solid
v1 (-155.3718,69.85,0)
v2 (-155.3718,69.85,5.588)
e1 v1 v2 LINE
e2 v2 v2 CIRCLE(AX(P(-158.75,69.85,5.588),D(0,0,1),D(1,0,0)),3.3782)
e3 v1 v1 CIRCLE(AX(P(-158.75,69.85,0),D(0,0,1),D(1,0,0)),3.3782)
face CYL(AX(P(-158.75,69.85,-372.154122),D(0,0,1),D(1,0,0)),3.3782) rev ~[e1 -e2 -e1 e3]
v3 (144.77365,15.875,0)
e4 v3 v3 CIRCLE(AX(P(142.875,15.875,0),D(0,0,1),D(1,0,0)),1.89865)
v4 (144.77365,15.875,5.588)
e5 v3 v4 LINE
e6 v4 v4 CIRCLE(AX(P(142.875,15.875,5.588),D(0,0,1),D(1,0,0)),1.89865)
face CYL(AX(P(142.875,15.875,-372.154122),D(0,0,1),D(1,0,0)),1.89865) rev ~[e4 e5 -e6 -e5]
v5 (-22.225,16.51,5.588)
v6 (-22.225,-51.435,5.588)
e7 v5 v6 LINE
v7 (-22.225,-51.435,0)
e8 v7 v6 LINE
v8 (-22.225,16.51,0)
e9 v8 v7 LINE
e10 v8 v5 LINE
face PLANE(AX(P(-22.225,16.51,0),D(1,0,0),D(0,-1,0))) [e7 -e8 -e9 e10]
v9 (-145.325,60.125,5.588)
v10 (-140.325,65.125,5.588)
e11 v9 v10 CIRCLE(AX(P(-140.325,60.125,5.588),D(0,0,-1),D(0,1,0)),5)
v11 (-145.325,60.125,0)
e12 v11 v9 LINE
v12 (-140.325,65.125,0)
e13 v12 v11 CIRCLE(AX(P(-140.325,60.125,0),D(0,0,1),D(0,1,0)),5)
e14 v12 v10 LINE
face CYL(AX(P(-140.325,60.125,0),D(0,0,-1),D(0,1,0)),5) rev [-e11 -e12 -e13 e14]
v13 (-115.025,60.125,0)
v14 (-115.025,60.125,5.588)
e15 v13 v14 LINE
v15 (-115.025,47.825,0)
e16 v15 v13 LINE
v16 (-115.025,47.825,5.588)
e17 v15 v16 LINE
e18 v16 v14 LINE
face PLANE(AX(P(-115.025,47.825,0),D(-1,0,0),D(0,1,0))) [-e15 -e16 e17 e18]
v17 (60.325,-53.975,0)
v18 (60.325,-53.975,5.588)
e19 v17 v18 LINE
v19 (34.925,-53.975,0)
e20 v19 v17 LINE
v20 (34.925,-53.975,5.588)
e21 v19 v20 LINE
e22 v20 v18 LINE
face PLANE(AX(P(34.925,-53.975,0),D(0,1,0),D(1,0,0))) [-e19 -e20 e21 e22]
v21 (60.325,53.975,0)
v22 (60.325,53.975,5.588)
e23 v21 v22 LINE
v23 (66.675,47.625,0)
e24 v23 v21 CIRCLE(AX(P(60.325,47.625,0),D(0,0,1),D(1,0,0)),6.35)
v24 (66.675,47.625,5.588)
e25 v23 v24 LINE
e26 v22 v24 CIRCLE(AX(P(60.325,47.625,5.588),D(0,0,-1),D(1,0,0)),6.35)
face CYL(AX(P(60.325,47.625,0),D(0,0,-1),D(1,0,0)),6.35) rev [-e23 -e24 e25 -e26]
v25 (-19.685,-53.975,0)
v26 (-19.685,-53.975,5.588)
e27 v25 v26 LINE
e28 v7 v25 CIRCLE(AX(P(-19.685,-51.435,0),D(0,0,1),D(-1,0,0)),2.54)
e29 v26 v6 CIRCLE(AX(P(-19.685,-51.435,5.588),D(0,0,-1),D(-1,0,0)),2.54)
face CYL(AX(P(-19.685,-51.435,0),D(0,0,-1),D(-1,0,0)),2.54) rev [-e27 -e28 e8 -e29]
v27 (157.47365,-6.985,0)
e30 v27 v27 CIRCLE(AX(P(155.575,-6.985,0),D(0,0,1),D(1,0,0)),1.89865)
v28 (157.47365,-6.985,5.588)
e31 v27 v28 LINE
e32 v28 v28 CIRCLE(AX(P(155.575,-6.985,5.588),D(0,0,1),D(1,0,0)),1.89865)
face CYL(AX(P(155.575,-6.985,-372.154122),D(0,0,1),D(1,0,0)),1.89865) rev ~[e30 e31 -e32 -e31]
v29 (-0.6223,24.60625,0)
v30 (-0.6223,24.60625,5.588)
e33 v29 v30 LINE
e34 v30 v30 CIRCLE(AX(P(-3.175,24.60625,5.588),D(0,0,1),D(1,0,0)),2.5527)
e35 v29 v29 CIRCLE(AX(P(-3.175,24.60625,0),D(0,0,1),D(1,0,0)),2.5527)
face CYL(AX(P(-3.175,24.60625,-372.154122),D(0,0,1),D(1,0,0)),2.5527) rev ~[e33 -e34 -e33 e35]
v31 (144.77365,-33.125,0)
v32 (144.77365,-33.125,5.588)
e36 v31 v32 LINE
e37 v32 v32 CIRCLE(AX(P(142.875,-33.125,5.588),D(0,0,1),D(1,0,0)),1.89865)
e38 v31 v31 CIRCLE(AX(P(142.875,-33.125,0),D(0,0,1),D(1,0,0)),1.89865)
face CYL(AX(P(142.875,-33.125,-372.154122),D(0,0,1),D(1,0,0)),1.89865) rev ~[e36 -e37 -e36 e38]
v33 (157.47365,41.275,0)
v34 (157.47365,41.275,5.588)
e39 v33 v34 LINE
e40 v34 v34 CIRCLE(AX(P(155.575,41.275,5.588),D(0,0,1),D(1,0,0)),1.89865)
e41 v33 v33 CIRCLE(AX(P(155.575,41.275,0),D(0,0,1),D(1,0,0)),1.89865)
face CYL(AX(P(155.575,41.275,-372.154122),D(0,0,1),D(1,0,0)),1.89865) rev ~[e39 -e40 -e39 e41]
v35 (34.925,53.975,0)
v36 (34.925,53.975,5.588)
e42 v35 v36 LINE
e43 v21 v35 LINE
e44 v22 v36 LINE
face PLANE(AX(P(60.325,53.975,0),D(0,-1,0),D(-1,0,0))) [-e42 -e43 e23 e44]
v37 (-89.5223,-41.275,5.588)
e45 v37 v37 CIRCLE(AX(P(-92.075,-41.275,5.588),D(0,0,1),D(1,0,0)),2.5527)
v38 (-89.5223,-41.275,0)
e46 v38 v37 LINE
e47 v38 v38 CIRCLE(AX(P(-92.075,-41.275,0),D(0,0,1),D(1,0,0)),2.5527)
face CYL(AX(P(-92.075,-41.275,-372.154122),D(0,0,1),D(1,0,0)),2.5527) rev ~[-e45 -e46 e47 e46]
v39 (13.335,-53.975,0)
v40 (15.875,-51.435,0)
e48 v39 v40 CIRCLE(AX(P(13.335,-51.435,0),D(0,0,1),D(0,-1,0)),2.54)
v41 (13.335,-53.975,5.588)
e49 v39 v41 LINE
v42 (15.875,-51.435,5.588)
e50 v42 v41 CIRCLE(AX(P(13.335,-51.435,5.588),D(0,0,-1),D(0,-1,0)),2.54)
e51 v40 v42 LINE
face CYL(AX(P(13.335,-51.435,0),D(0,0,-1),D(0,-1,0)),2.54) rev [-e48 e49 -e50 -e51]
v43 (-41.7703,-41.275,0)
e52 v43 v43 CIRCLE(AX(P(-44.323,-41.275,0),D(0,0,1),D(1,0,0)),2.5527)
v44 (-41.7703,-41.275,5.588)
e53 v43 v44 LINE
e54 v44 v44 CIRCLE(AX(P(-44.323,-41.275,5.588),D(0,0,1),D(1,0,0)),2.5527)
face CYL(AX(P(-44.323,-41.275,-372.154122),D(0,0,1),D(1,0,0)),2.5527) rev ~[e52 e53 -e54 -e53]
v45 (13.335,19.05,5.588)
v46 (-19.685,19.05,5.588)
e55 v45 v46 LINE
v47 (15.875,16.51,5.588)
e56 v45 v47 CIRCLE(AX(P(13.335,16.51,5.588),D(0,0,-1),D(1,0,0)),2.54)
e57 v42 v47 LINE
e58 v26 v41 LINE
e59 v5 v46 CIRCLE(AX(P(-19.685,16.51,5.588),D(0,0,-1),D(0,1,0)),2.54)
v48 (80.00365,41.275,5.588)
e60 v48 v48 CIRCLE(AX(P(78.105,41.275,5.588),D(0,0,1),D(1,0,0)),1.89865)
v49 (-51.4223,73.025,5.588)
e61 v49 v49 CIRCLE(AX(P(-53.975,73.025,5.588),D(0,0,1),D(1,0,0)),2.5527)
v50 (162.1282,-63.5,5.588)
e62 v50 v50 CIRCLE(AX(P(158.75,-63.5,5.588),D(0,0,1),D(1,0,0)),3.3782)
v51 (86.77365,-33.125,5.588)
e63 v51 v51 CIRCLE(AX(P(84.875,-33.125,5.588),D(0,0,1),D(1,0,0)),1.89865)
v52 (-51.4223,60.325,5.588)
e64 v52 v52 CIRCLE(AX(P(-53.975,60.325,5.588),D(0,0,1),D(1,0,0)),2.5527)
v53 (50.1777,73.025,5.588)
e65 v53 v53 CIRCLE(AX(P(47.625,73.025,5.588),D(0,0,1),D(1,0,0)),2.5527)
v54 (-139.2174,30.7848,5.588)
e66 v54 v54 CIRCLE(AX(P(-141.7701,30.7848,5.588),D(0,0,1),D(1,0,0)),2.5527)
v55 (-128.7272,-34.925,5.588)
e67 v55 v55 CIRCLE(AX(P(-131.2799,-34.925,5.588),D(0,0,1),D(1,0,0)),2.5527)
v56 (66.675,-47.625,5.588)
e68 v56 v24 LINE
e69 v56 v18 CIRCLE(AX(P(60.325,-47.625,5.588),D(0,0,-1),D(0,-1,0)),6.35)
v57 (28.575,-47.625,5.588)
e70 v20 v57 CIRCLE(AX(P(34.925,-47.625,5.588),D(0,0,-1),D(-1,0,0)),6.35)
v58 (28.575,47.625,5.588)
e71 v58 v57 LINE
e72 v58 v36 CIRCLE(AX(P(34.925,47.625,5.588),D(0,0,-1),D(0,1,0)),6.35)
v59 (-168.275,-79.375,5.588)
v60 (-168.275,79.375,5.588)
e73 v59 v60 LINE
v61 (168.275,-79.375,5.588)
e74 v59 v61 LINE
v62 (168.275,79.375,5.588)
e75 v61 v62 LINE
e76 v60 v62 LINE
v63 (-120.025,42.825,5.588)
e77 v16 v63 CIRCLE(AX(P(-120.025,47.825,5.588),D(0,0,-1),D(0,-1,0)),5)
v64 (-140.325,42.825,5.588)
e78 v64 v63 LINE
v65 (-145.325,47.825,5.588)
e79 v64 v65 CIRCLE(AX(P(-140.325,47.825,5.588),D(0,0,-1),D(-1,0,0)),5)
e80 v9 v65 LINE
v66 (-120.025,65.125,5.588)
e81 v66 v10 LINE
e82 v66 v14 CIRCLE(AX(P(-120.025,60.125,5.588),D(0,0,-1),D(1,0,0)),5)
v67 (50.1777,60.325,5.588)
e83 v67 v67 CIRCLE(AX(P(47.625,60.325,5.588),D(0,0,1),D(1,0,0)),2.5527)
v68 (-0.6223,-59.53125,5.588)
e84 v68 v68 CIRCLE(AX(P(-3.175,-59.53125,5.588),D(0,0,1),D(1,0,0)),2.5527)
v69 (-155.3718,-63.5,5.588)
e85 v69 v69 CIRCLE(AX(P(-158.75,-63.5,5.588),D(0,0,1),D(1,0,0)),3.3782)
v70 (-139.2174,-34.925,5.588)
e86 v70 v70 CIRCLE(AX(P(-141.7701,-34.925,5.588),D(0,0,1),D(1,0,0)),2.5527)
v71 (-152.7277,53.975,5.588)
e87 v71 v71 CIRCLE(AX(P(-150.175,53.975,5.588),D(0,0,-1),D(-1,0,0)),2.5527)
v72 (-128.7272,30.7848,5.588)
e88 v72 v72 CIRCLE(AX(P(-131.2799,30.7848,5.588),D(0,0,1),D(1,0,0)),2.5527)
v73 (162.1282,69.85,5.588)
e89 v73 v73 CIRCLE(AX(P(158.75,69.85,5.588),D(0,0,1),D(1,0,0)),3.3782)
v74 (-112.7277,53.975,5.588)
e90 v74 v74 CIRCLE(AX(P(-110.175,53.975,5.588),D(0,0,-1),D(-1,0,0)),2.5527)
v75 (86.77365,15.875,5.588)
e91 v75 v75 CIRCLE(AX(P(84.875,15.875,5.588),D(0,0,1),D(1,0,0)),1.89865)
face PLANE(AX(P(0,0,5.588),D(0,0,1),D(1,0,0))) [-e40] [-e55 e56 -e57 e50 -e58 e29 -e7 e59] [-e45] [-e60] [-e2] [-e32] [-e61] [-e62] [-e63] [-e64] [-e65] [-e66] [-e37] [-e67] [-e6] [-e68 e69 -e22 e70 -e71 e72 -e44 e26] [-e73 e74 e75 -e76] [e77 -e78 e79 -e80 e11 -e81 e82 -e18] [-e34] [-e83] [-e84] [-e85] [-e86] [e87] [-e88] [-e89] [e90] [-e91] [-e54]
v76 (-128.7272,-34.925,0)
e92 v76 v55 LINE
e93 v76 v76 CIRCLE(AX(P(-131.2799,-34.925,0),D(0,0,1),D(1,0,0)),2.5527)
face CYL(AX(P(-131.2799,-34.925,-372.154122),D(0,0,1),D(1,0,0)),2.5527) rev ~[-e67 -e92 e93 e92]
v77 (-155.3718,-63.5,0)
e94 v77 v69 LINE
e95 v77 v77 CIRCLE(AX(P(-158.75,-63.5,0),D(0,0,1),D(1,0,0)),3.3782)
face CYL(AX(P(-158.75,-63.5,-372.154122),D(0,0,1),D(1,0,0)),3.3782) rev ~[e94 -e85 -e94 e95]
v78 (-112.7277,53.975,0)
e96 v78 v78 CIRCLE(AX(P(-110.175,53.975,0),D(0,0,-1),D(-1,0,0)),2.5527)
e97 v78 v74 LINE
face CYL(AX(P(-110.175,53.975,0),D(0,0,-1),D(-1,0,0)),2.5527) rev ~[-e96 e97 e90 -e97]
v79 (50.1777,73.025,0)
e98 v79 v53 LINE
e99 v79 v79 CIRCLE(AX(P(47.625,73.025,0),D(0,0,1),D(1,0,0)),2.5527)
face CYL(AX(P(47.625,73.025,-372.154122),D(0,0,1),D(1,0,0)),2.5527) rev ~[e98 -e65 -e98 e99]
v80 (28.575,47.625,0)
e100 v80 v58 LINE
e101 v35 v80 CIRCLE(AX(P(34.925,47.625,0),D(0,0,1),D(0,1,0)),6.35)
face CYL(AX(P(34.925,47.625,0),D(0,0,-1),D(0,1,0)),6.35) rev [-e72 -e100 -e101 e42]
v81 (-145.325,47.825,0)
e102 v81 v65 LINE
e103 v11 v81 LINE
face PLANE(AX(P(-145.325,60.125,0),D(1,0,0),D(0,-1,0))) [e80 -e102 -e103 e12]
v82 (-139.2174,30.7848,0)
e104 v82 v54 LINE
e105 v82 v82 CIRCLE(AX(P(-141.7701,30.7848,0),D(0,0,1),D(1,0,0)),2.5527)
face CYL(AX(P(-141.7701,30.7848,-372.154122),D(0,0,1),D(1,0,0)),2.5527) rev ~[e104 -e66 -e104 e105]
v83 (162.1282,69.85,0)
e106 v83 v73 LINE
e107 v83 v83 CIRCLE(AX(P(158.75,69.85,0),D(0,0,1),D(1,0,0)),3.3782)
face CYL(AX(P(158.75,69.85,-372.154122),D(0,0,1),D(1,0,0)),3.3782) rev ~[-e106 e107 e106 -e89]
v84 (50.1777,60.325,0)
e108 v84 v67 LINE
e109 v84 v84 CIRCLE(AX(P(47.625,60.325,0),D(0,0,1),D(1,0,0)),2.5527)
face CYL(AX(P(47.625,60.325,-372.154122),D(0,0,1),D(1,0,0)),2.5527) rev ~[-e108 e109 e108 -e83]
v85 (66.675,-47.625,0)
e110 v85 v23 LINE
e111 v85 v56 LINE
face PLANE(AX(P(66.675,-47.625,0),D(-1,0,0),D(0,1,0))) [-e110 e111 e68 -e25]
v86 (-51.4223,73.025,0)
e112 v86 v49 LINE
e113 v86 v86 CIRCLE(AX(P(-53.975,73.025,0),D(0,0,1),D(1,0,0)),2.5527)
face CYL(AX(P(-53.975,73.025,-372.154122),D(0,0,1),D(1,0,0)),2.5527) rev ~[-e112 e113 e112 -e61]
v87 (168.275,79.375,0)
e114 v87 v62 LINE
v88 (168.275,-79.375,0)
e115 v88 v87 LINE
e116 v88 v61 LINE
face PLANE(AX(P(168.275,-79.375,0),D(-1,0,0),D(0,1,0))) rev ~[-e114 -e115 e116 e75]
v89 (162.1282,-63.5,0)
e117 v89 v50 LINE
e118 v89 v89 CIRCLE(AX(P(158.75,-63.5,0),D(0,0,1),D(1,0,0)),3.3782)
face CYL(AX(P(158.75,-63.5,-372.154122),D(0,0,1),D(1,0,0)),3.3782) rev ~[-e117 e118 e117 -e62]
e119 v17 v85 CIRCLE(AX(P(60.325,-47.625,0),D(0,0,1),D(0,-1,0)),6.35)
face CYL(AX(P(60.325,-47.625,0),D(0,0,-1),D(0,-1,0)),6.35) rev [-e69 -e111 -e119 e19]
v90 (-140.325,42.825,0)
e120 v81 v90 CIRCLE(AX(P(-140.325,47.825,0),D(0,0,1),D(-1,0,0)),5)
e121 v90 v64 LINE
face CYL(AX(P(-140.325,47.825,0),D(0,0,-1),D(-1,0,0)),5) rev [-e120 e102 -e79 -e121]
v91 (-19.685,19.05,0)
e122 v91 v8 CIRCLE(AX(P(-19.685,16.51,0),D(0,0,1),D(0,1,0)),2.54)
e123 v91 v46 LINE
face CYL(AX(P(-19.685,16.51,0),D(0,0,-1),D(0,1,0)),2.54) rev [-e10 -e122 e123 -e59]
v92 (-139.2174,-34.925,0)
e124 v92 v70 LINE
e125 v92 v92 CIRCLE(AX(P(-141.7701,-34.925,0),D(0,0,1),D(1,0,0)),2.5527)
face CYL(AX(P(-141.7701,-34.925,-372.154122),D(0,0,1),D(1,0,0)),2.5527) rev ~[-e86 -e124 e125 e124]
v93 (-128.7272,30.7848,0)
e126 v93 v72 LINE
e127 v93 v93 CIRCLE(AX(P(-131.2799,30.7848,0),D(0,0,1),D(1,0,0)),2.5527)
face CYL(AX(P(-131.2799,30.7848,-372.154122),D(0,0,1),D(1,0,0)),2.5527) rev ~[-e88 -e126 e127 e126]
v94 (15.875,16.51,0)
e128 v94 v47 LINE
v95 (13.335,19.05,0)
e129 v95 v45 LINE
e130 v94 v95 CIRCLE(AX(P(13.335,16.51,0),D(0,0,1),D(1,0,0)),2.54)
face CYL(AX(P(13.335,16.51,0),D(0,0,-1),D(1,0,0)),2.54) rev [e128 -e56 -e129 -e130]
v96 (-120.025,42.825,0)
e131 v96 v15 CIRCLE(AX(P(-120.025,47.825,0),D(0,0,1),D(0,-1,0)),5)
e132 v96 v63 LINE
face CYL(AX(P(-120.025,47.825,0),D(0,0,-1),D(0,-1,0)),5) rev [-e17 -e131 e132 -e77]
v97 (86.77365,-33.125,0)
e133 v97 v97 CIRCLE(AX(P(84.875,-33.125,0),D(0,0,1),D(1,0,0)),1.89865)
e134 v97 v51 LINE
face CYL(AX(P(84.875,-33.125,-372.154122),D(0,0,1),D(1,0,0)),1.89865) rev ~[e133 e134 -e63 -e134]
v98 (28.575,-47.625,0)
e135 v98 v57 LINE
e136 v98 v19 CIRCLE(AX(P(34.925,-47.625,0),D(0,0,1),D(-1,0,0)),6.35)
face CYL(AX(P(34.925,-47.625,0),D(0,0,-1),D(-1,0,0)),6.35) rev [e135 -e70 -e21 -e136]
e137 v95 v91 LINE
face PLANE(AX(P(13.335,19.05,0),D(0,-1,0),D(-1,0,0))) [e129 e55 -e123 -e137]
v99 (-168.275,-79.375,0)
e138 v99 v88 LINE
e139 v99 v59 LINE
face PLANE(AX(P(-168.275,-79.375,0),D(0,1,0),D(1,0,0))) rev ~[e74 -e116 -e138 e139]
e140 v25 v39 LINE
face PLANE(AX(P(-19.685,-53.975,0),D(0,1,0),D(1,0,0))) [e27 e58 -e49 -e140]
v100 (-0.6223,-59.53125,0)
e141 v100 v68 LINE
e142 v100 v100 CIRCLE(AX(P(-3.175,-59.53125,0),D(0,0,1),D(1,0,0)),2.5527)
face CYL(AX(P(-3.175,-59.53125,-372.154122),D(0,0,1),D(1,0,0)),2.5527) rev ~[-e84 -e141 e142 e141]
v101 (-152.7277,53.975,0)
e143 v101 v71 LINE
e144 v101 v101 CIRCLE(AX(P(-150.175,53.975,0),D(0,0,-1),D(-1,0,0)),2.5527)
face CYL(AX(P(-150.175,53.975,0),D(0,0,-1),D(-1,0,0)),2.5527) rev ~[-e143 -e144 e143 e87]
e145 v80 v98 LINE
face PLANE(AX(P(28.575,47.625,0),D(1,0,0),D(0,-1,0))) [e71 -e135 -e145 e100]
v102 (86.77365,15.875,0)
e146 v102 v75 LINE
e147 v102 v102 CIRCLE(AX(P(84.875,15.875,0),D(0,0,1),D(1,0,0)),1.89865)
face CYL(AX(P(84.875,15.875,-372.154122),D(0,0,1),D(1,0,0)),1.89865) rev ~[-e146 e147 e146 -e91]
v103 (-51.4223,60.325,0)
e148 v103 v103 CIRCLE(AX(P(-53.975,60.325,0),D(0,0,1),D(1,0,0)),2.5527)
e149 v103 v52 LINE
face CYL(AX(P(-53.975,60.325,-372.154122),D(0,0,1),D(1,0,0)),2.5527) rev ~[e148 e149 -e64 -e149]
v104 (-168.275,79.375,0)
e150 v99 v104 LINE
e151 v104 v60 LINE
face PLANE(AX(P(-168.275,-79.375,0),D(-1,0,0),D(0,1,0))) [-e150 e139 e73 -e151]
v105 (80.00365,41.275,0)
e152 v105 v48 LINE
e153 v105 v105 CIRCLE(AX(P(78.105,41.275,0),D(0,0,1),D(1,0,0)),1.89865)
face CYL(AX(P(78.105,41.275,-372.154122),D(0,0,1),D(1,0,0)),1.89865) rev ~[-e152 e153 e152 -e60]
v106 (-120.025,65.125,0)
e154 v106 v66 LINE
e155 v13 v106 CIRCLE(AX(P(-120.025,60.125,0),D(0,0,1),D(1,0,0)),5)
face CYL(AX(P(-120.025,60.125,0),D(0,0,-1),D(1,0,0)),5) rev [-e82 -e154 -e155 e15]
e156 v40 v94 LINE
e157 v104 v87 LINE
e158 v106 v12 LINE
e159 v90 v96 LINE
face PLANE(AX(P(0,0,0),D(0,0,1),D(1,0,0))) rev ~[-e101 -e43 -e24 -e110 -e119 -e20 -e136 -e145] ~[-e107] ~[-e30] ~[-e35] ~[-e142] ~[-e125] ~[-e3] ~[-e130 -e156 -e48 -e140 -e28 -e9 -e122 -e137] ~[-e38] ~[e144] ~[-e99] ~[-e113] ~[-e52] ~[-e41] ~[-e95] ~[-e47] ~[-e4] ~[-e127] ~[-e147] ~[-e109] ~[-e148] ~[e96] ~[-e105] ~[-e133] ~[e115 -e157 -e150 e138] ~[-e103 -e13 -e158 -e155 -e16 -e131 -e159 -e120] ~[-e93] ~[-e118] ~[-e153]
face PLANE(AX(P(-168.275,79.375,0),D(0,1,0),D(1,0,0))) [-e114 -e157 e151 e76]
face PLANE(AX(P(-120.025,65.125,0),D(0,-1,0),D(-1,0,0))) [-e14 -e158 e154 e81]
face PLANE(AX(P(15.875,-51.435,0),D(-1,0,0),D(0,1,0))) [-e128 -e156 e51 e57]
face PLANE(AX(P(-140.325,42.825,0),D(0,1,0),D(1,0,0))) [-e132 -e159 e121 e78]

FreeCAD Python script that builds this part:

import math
import FreeCAD as App
import Part
import Sketcher
Q = App.Units.Quantity

doc = App.newDocument("Part")
body = doc.addObject("PartDesign::Body", "Body")

sketch1 = doc.addObject("Sketcher::SketchObject", "Sketch")
body.addObject(sketch1)
sketch1.AttachmentSupport = (doc.XY_Plane, [""])
sketch1.MapMode = "FlatFace"
sketch1.addGeometry(Part.LineSegment(App.Vector(-168, 79, 0), App.Vector(-168, -79, 0)), False)
sketch1.addGeometry(Part.LineSegment(App.Vector(-168, -79, 0), App.Vector(168, -79, 0)), False)
sketch1.addGeometry(Part.LineSegment(App.Vector(168, -79, 0), App.Vector(168, 79, 0)), False)
sketch1.addGeometry(Part.LineSegment(App.Vector(168, 79, 0), App.Vector(-168, 79, 0)), False)
sketch1.addConstraint(Sketcher.Constraint("Coincident", 0, 2, 1, 1))
sketch1.addConstraint(Sketcher.Constraint("Coincident", 1, 2, 2, 1))
sketch1.addConstraint(Sketcher.Constraint("Coincident", 2, 2, 3, 1))
sketch1.addConstraint(Sketcher.Constraint("Coincident", 3, 2, 0, 1))
sketch1.addConstraint(Sketcher.Constraint("Vertical", 0))
sketch1.addConstraint(Sketcher.Constraint("Horizontal", 1))
sketch1.addConstraint(Sketcher.Constraint("Vertical", 2))
sketch1.addConstraint(Sketcher.Constraint("Horizontal", 3))
sketch1.addConstraint(Sketcher.Constraint("Symmetric", 0, 2, 2, 2, -1, 1))
sketch1.addConstraint(Sketcher.Constraint("DistanceX", 1, 1, 1, 2, Q("13.25 in")))
sketch1.addConstraint(Sketcher.Constraint("DistanceY", 0, 2, 0, 1, Q("6.25 in")))
pad1 = doc.addObject("PartDesign::Pad", "Pad")
body.addObject(pad1)
pad1.Profile = sketch1
pad1.Length = Q("0.22 in")

sketch2 = doc.addObject("Sketcher::SketchObject", "Sketch001")
body.addObject(sketch2)
sketch2.AttachmentSupport = (doc.XY_Plane, [""])
sketch2.MapMode = "FlatFace"
sketch2.addGeometry(Part.Circle(App.Vector(158.8, 69.8, 0), App.Vector(0, 0, 1), 3.4), False)
sketch2.addGeometry(Part.Circle(App.Vector(-158.8, -63.5, 0), App.Vector(0, 0, 1), 3.4), False)
sketch2.addGeometry(Part.Circle(App.Vector(158.8, -63.5, 0), App.Vector(0, 0, 1), 3.4), False)
sketch2.addGeometry(Part.Circle(App.Vector(-158.8, 69.8, 0), App.Vector(0, 0, 1), 3.4), False)
sketch2.addConstraint(Sketcher.Constraint("Equal", 0, 1))
sketch2.addConstraint(Sketcher.Constraint("Equal", 1, 2))
sketch2.addConstraint(Sketcher.Constraint("Equal", 2, 3))
sketch2.addConstraint(Sketcher.Constraint("Symmetric", 1, 3, 2, 3, -2))
sketch2.addConstraint(Sketcher.Constraint("Symmetric", 0, 3, 3, 3, -2))
sketch2.addConstraint(Sketcher.Constraint("Vertical", 0, 3, 2, 3))
sketch2.addConstraint(Sketcher.Constraint("Diameter", 0, Q("0.266 in")))
sketch2.addConstraint(Sketcher.Constraint("DistanceY", 1, 3, -1, 1, Q("2.5 in")))
sketch2.addConstraint(Sketcher.Constraint("DistanceX", 1, 3, 0, 3, Q("12.5 in")))
sketch2.addConstraint(Sketcher.Constraint("DistanceY", -1, 1, 0, 3, Q("2.75 in")))
doc.recompute()
hole = doc.addObject("PartDesign::Hole", "Hole")
body.addObject(hole)
hole.Profile = sketch2
hole.ThreadType = "None"
hole.Diameter = Q("0.266 in")
hole.DepthType = "ThroughAll"
hole.Reversed = True

sketch3 = doc.addObject("Sketcher::SketchObject", "Sketch002")
body.addObject(sketch3)
sketch3.AttachmentSupport = (doc.XY_Plane, [""])
sketch3.MapMode = "FlatFace"
sketch3.addGeometry(Part.Circle(App.Vector(155.6, 41.3, 0), App.Vector(0, 0, 1), 1.9), False)
sketch3.addGeometry(Part.Circle(App.Vector(155.6, -7, 0), App.Vector(0, 0, 1), 1.9), False)
sketch3.addGeometry(Part.Circle(App.Vector(78.1, 41.3, 0), App.Vector(0, 0, 1), 1.9), False)
sketch3.addConstraint(Sketcher.Constraint("Equal", 0, 1))
sketch3.addConstraint(Sketcher.Constraint("Equal", 1, 2))
sketch3.addConstraint(Sketcher.Constraint("Horizontal", 0, 3, 2, 3))
sketch3.addConstraint(Sketcher.Constraint("Vertical", 0, 3, 1, 3))
sketch3.addConstraint(Sketcher.Constraint("Diameter", 0, Q("0.1495 in")))
sketch3.addConstraint(Sketcher.Constraint("DistanceY", 1, 3, 0, 3, Q("1.9 in")))
sketch3.addConstraint(Sketcher.Constraint("DistanceX", 2, 3, 0, 3, Q("3.05 in")))
sketch3.addConstraint(Sketcher.Constraint("DistanceX", -1, 1, 0, 3, Q("6.125 in")))
sketch3.addConstraint(Sketcher.Constraint("DistanceY", -1, 1, 0, 3, Q("1.625 in")))
doc.recompute()
hole2 = doc.addObject("PartDesign::Hole", "Hole001")
body.addObject(hole2)
hole2.Profile = sketch3
hole2.ThreadType = "None"
hole2.Diameter = Q("0.1495 in")
hole2.DepthType = "ThroughAll"
hole2.Reversed = True

sketch4 = doc.addObject("Sketcher::SketchObject", "Sketch003")
body.addObject(sketch4)
sketch4.AttachmentSupport = (doc.XY_Plane, [""])
sketch4.MapMode = "FlatFace"
sketch4.addGeometry(Part.Circle(App.Vector(142.9, 15.9, 0), App.Vector(0, 0, 1), 1.9), False)
sketch4.addGeometry(Part.Circle(App.Vector(84.9, -33.1, 0), App.Vector(0, 0, 1), 1.9), False)
sketch4.addGeometry(Part.Circle(App.Vector(142.9, -33.1, 0), App.Vector(0, 0, 1), 1.9), False)
sketch4.addGeometry(Part.Circle(App.Vector(84.9, 15.9, 0), App.Vector(0, 0, 1), 1.9), False)
sketch4.addConstraint(Sketcher.Constraint("Equal", 0, 1))
sketch4.addConstraint(Sketcher.Constraint("Equal", 1, 2))
sketch4.addConstraint(Sketcher.Constraint("Equal", 2, 3))
sketch4.addConstraint(Sketcher.Constraint("Horizontal", 1, 3, 2, 3))
sketch4.addConstraint(Sketcher.Constraint("Horizontal", 0, 3, 3, 3))
sketch4.addConstraint(Sketcher.Constraint("Vertical", 0, 3, 2, 3))
sketch4.addConstraint(Sketcher.Constraint("Vertical", 1, 3, 3, 3))
sketch4.addConstraint(Sketcher.Constraint("Diameter", 0, Q("0.1495 in")))
sketch4.addConstraint(Sketcher.Constraint("DistanceX", -1, 1, 0, 3, Q("5.625 in")))
sketch4.addConstraint(Sketcher.Constraint("DistanceY", -1, 1, 0, 3, Q("0.625 in")))
sketch4.addConstraint(Sketcher.Constraint("DistanceX", -1, 1, 1, 3, Q("84.875 mm")))
sketch4.addConstraint(Sketcher.Constraint("DistanceY", 1, 3, -1, 1, Q("33.125 mm")))
doc.recompute()
hole3 = doc.addObject("PartDesign::Hole", "Hole002")
body.addObject(hole3)
hole3.Profile = sketch4
hole3.ThreadType = "None"
hole3.Diameter = Q("0.1495 in")
hole3.DepthType = "ThroughAll"
hole3.Reversed = True

sketch5 = doc.addObject("Sketcher::SketchObject", "Sketch004")
body.addObject(sketch5)
sketch5.AttachmentSupport = (doc.XY_Plane, [""])
sketch5.MapMode = "FlatFace"
sketch5.addGeometry(Part.LineSegment(App.Vector(-19.7, 19.1, 0), App.Vector(13.3, 19.1, 0)), False)
sketch5.addGeometry(Part.ArcOfCircle(Part.Circle(App.Vector(13.3, 16.5, 0), App.Vector(0, 0, 1), 2.5), math.radians(0), math.radians(90)), False)
sketch5.addGeometry(Part.LineSegment(App.Vector(15.9, 16.5, 0), App.Vector(15.9, -51.4, 0)), False)
sketch5.addGeometry(Part.ArcOfCircle(Part.Circle(App.Vector(13.3, -51.4, 0), App.Vector(0, 0, 1), 2.5), math.radians(-90), math.radians(0)), False)
sketch5.addGeometry(Part.LineSegment(App.Vector(13.3, -54, 0), App.Vector(-19.7, -54, 0)), False)
sketch5.addGeometry(Part.ArcOfCircle(Part.Circle(App.Vector(-19.7, -51.4, 0), App.Vector(0, 0, 1), 2.5), math.radians(-180), math.radians(-90)), False)
sketch5.addGeometry(Part.LineSegment(App.Vector(-22.2, -51.4, 0), App.Vector(-22.2, 16.5, 0)), False)
sketch5.addGeometry(Part.ArcOfCircle(Part.Circle(App.Vector(-19.7, 16.5, 0), App.Vector(0, 0, 1), 2.5), math.radians(90), math.radians(180)), False)
sketch5.addConstraint(Sketcher.Constraint("Tangent", 0, 2, 1, 2))
sketch5.addConstraint(Sketcher.Constraint("Tangent", 1, 1, 2, 1))
sketch5.addConstraint(Sketcher.Constraint("Tangent", 2, 2, 3, 2))
sketch5.addConstraint(Sketcher.Constraint("Tangent", 3, 1, 4, 1))
sketch5.addConstraint(Sketcher.Constraint("Tangent", 4, 2, 5, 2))
sketch5.addConstraint(Sketcher.Constraint("Tangent", 5, 1, 6, 1))
sketch5.addConstraint(Sketcher.Constraint("Tangent", 6, 2, 7, 2))
sketch5.addConstraint(Sketcher.Constraint("Tangent", 7, 1, 0, 1))
sketch5.addConstraint(Sketcher.Constraint("Horizontal", 0))
sketch5.addConstraint(Sketcher.Constraint("Vertical", 2))
sketch5.addConstraint(Sketcher.Constraint("Horizontal", 4))
sketch5.addConstraint(Sketcher.Constraint("Vertical", 6))
sketch5.addConstraint(Sketcher.Constraint("Equal", 1, 3))
sketch5.addConstraint(Sketcher.Constraint("Equal", 3, 5))
sketch5.addConstraint(Sketcher.Constraint("Equal", 5, 7))
sketch5.addConstraint(Sketcher.Constraint("Radius", 1, Q("0.1 in")))
sketch5.addConstraint(Sketcher.Constraint("DistanceX", 0, 1, 0, 2, Q("1.3 in")))
sketch5.addConstraint(Sketcher.Constraint("DistanceY", 2, 2, 2, 1, Q("2.675 in")))
sketch5.addConstraint(Sketcher.Constraint("DistanceY", -1, 1, 1, 3, Q("0.65 in")))
sketch5.addConstraint(Sketcher.Constraint("DistanceX", -1, 1, 1, 3, Q("0.525 in")))
pocket1 = doc.addObject("PartDesign::Pocket", "Pocket")
body.addObject(pocket1)
pocket1.Profile = sketch5
pocket1.Type = "UpToFirst"
pocket1.Reversed = True

sketch6 = doc.addObject("Sketcher::SketchObject", "Sketch005")
body.addObject(sketch6)
sketch6.AttachmentSupport = (doc.XY_Plane, [""])
sketch6.MapMode = "FlatFace"
sketch6.addGeometry(Part.Circle(App.Vector(-3.2, 24.6, 0), App.Vector(0, 0, 1), 2.6), False)
sketch6.addGeometry(Part.Circle(App.Vector(-3.2, -59.5, 0), App.Vector(0, 0, 1), 2.6), False)
sketch6.addConstraint(Sketcher.Constraint("Equal", 0, 1))
sketch6.addConstraint(Sketcher.Constraint("Vertical", 0, 3, 1, 3))
sketch6.addConstraint(Sketcher.Constraint("Diameter", 0, Q("0.201 in")))
sketch6.addConstraint(Sketcher.Constraint("DistanceX", 0, 3, -1, 1, Q("0.125 in")))
sketch6.addConstraint(Sketcher.Constraint("DistanceY", -1, 1, 0, 3, Q("0.96875 in")))
sketch6.addConstraint(Sketcher.Constraint("DistanceY", 1, 3, -1, 1, Q("2.34375 in")))
doc.recompute()
hole4 = doc.addObject("PartDesign::Hole", "Hole003")
body.addObject(hole4)
hole4.Profile = sketch6
hole4.ThreadType = "None"
hole4.Diameter = Q("0.201 in")
hole4.DepthType = "ThroughAll"
hole4.Reversed = True

sketch7 = doc.addObject("Sketcher::SketchObject", "Sketch006")
body.addObject(sketch7)
sketch7.AttachmentSupport = (doc.XY_Plane, [""])
sketch7.MapMode = "FlatFace"
sketch7.addGeometry(Part.LineSegment(App.Vector(35, 54, 0), App.Vector(60, 54, 0)), False)
sketch7.addGeometry(Part.ArcOfCircle(Part.Circle(App.Vector(60, 48, 0), App.Vector(0, 0, 1), 6), math.radians(0), math.radians(90)), False)
sketch7.addGeometry(Part.LineSegment(App.Vector(67, 48, 0), App.Vector(67, -48, 0)), False)
sketch7.addGeometry(Part.ArcOfCircle(Part.Circle(App.Vector(60, -48, 0), App.Vector(0, 0, 1), 6), math.radians(-90), math.radians(0)), False)
sketch7.addGeometry(Part.LineSegment(App.Vector(60, -54, 0), App.Vector(35, -54, 0)), False)
sketch7.addGeometry(Part.ArcOfCircle(Part.Circle(App.Vector(35, -48, 0), App.Vector(0, 0, 1), 6), math.radians(180), math.radians(270)), False)
sketch7.addGeometry(Part.LineSegment(App.Vector(29, -48, 0), App.Vector(29, 48, 0)), False)
sketch7.addGeometry(Part.ArcOfCircle(Part.Circle(App.Vector(35, 48, 0), App.Vector(0, 0, 1), 6), math.radians(90), math.radians(180)), False)
sketch7.addConstraint(Sketcher.Constraint("Tangent", 0, 2, 1, 2))
sketch7.addConstraint(Sketcher.Constraint("Tangent", 1, 1, 2, 1))
sketch7.addConstraint(Sketcher.Constraint("Tangent", 2, 2, 3, 2))
sketch7.addConstraint(Sketcher.Constraint("Tangent", 3, 1, 4, 1))
sketch7.addConstraint(Sketcher.Constraint("Tangent", 4, 2, 5, 2))
sketch7.addConstraint(Sketcher.Constraint("Tangent", 5, 1, 6, 1))
sketch7.addConstraint(Sketcher.Constraint("Tangent", 6, 2, 7, 2))
sketch7.addConstraint(Sketcher.Constraint("Tangent", 7, 1, 0, 1))
sketch7.addConstraint(Sketcher.Constraint("Horizontal", 0))
sketch7.addConstraint(Sketcher.Constraint("Vertical", 2))
sketch7.addConstraint(Sketcher.Constraint("Horizontal", 4))
sketch7.addConstraint(Sketcher.Constraint("Vertical", 6))
sketch7.addConstraint(Sketcher.Constraint("Equal", 1, 3))
sketch7.addConstraint(Sketcher.Constraint("Equal", 3, 5))
sketch7.addConstraint(Sketcher.Constraint("Equal", 5, 7))
sketch7.addConstraint(Sketcher.Constraint("DistanceX", 0, 1, 0, 2, Q("1 in")))
sketch7.addConstraint(Sketcher.Constraint("Radius", 1, Q("0.25 in")))
sketch7.addConstraint(Sketcher.Constraint("DistanceY", 3, 3, 0, 2, Q("4 in")))
sketch7.addConstraint(Sketcher.Constraint("DistanceX", -1, 1, 1, 3, Q("2.375 in")))
sketch7.addConstraint(Sketcher.Constraint("DistanceY", -1, 1, 1, 3, Q("1.875 in")))
pocket2 = doc.addObject("PartDesign::Pocket", "Pocket001")
body.addObject(pocket2)
pocket2.Profile = sketch7
pocket2.Type = "UpToFirst"
pocket2.Reversed = True

sketch8 = doc.addObject("Sketcher::SketchObject", "Sketch007")
body.addObject(sketch8)
sketch8.AttachmentSupport = (doc.XY_Plane, [""])
sketch8.MapMode = "FlatFace"
sketch8.addGeometry(Part.Circle(App.Vector(-131.3, 30.8, 0), App.Vector(0, 0, 1), 2.6), False)
sketch8.addGeometry(Part.Circle(App.Vector(-131.3, -34.9, 0), App.Vector(0, 0, 1), 2.6), False)
sketch8.addGeometry(Part.Circle(App.Vector(-141.8, 30.8, 0), App.Vector(0, 0, 1), 2.6), False)
sketch8.addGeometry(Part.Circle(App.Vector(-141.8, -34.9, 0), App.Vector(0, 0, 1), 2.6), False)
sketch8.addConstraint(Sketcher.Constraint("Equal", 0, 1))
sketch8.addConstraint(Sketcher.Constraint("Equal", 1, 2))
sketch8.addConstraint(Sketcher.Constraint("Equal", 2, 3))
sketch8.addConstraint(Sketcher.Constraint("Horizontal", 0, 3, 2, 3))
sketch8.addConstraint(Sketcher.Constraint("Horizontal", 1, 3, 3, 3))
sketch8.addConstraint(Sketcher.Constraint("Vertical", 0, 3, 1, 3))
sketch8.addConstraint(Sketcher.Constraint("Vertical", 2, 3, 3, 3))
sketch8.addConstraint(Sketcher.Constraint("Diameter", 0, Q("0.201 in")))
sketch8.addConstraint(Sketcher.Constraint("DistanceY", -1, 1, 0, 3, Q("1.212 in")))
sketch8.addConstraint(Sketcher.Constraint("DistanceY", 1, 3, -1, 1, Q("1.375 in")))
sketch8.addConstraint(Sketcher.Constraint("DistanceX", 2, 3, 0, 3, Q("0.413 in")))
sketch8.addConstraint(Sketcher.Constraint("DistanceX", 0, 3, -1, 1, Q("5.1685 in")))
doc.recompute()
hole5 = doc.addObject("PartDesign::Hole", "Hole004")
body.addObject(hole5)
hole5.Profile = sketch8
hole5.ThreadType = "None"
hole5.Diameter = Q("0.201 in")
hole5.DepthType = "ThroughAll"
hole5.Reversed = True

sketch9 = doc.addObject("Sketcher::SketchObject", "Sketch008")
body.addObject(sketch9)
sketch9.AttachmentSupport = (doc.XY_Plane, [""])
sketch9.MapMode = "FlatFace"
sketch9.addGeometry(Part.Circle(App.Vector(47.6, 73, 0), App.Vector(0, 0, 1), 2.6), False)
sketch9.addGeometry(Part.Circle(App.Vector(-54, 60.3, 0), App.Vector(0, 0, 1), 2.6), False)
sketch9.addGeometry(Part.Circle(App.Vector(47.6, 60.3, 0), App.Vector(0, 0, 1), 2.6), False)
sketch9.addGeometry(Part.Circle(App.Vector(-54, 73, 0), App.Vector(0, 0, 1), 2.6), False)
sketch9.addConstraint(Sketcher.Constraint("Equal", 0, 1))
sketch9.addConstraint(Sketcher.Constraint("Equal", 1, 2))
sketch9.addConstraint(Sketcher.Constraint("Equal", 2, 3))
sketch9.addConstraint(Sketcher.Constraint("Horizontal", 1, 3, 2, 3))
sketch9.addConstraint(Sketcher.Constraint("Horizontal", 0, 3, 3, 3))
sketch9.addConstraint(Sketcher.Constraint("Vertical", 0, 3, 2, 3))
sketch9.addConstraint(Sketcher.Constraint("Vertical", 1, 3, 3, 3))
sketch9.addConstraint(Sketcher.Constraint("Diameter", 0, Q("0.201 in")))
sketch9.addConstraint(Sketcher.Constraint("DistanceX", 1, 3, 0, 3, Q("4 in")))
sketch9.addConstraint(Sketcher.Constraint("DistanceY", 1, 3, 0, 3, Q("0.5 in")))
sketch9.addConstraint(Sketcher.Constraint("DistanceX", -1, 1, 0, 3, Q("1.875 in")))
sketch9.addConstraint(Sketcher.Constraint("DistanceY", -1, 1, 0, 3, Q("2.875 in")))
doc.recompute()
hole6 = doc.addObject("PartDesign::Hole", "Hole005")
body.addObject(hole6)
hole6.Profile = sketch9
hole6.ThreadType = "None"
hole6.Diameter = Q("0.201 in")
hole6.DepthType = "ThroughAll"
hole6.Reversed = True

sketch10 = doc.addObject("Sketcher::SketchObject", "Sketch009")
body.addObject(sketch10)
sketch10.AttachmentSupport = (doc.XY_Plane, [""])
sketch10.MapMode = "FlatFace"
sketch10.addGeometry(Part.Circle(App.Vector(-44.3, -41.3, 0), App.Vector(0, 0, 1), 2.6), False)
sketch10.addGeometry(Part.Circle(App.Vector(-92.1, -41.3, 0), App.Vector(0, 0, 1), 2.6), False)
sketch10.addConstraint(Sketcher.Constraint("Equal", 0, 1))
sketch10.addConstraint(Sketcher.Constraint("Horizontal", 0, 3, 1, 3))
sketch10.addConstraint(Sketcher.Constraint("Diameter", 0, Q("0.201 in")))
sketch10.addConstraint(Sketcher.Constraint("DistanceX", 1, 3, 0, 3, Q("1.88 in")))
sketch10.addConstraint(Sketcher.Constraint("DistanceX", 0, 3, -1, 1, Q("1.745 in")))
sketch10.addConstraint(Sketcher.Constraint("DistanceY", 0, 3, -1, 1, Q("1.625 in")))
doc.recompute()
hole7 = doc.addObject("PartDesign::Hole", "Hole006")
body.addObject(hole7)
hole7.Profile = sketch10
hole7.ThreadType = "None"
hole7.Diameter = Q("0.201 in")
hole7.DepthType = "ThroughAll"
hole7.Reversed = True

sketch11 = doc.addObject("Sketcher::SketchObject", "Sketch010")
body.addObject(sketch11)
sketch11.AttachmentSupport = (doc.XY_Plane, [""])
sketch11.MapMode = "FlatFace"
sketch11.addGeometry(Part.Circle(App.Vector(-110.2, 54, 0), App.Vector(0, 0, 1), 2.6), False)
sketch11.addConstraint(Sketcher.Constraint("Diameter", 0, Q("0.201 in")))
sketch11.addConstraint(Sketcher.Constraint("DistanceY", -1, 1, 0, 3, Q("2.125 in")))
sketch11.addConstraint(Sketcher.Constraint("DistanceX", 0, 3, -1, 1, Q("110.175 mm")))
pocket3 = doc.addObject("PartDesign::Pocket", "Pocket002")
body.addObject(pocket3)
pocket3.Profile = sketch11
pocket3.Type = "UpToFirst"
pocket3.Reversed = True

sketch12 = doc.addObject("Sketcher::SketchObject", "Sketch011")
body.addObject(sketch12)
sketch12.AttachmentSupport = (doc.XY_Plane, [""])
sketch12.MapMode = "FlatFace"
sketch12.addGeometry(Part.Circle(App.Vector(-150.2, 54, 0), App.Vector(0, 0, 1), 2.6), False)
sketch12.addConstraint(Sketcher.Constraint("Diameter", 0, Q("0.201 in")))
sketch12.addConstraint(Sketcher.Constraint("DistanceY", -1, 1, 0, 3, Q("2.125 in")))
sketch12.addConstraint(Sketcher.Constraint("DistanceX", 0, 3, -1, 1, Q("150.175 mm")))
pocket4 = doc.addObject("PartDesign::Pocket", "Pocket003")
body.addObject(pocket4)
pocket4.Profile = sketch12
pocket4.Type = "UpToFirst"
pocket4.Reversed = True

sketch13 = doc.addObject("Sketcher::SketchObject", "Sketch012")
body.addObject(sketch13)
sketch13.AttachmentSupport = (doc.XY_Plane, [""])
sketch13.MapMode = "FlatFace"
sketch13.addGeometry(Part.LineSegment(App.Vector(-140, 65, 0), App.Vector(-120, 65, 0)), False)
sketch13.addGeometry(Part.ArcOfCircle(Part.Circle(App.Vector(-120, 60, 0), App.Vector(0, 0, 1), 5), math.radians(0), math.radians(90)), False)
sketch13.addGeometry(Part.LineSegment(App.Vector(-115, 60, 0), App.Vector(-115, 48, 0)), False)
sketch13.addGeometry(Part.ArcOfCircle(Part.Circle(App.Vector(-120, 48, 0), App.Vector(0, 0, 1), 5), math.radians(-90), math.radians(0)), False)
sketch13.addGeometry(Part.LineSegment(App.Vector(-120, 43, 0), App.Vector(-140, 43, 0)), False)
sketch13.addGeometry(Part.ArcOfCircle(Part.Circle(App.Vector(-140, 48, 0), App.Vector(0, 0, 1), 5), math.radians(180), math.radians(270)), False)
sketch13.addGeometry(Part.LineSegment(App.Vector(-145, 48, 0), App.Vector(-145, 60, 0)), False)
sketch13.addGeometry(Part.ArcOfCircle(Part.Circle(App.Vector(-140, 60, 0), App.Vector(0, 0, 1), 5), math.radians(90), math.radians(180)), False)
sketch13.addConstraint(Sketcher.Constraint("Tangent", 0, 2, 1, 2))
sketch13.addConstraint(Sketcher.Constraint("Tangent", 1, 1, 2, 1))
sketch13.addConstraint(Sketcher.Constraint("Tangent", 2, 2, 3, 2))
sketch13.addConstraint(Sketcher.Constraint("Tangent", 3, 1, 4, 1))
sketch13.addConstraint(Sketcher.Constraint("Tangent", 4, 2, 5, 2))
sketch13.addConstraint(Sketcher.Constraint("Tangent", 5, 1, 6, 1))
sketch13.addConstraint(Sketcher.Constraint("Tangent", 6, 2, 7, 2))
sketch13.addConstraint(Sketcher.Constraint("Tangent", 7, 1, 0, 1))
sketch13.addConstraint(Sketcher.Constraint("Horizontal", 0))
sketch13.addConstraint(Sketcher.Constraint("Vertical", 2))
sketch13.addConstraint(Sketcher.Constraint("Horizontal", 4))
sketch13.addConstraint(Sketcher.Constraint("Vertical", 6))
sketch13.addConstraint(Sketcher.Constraint("Equal", 1, 3))
sketch13.addConstraint(Sketcher.Constraint("Equal", 3, 5))
sketch13.addConstraint(Sketcher.Constraint("Equal", 5, 7))
sketch13.addConstraint(Sketcher.Constraint("Radius", 1, Q("5 mm")))
sketch13.addConstraint(Sketcher.Constraint("DistanceX", 0, 1, 0, 2, Q("20.3 mm")))
sketch13.addConstraint(Sketcher.Constraint("DistanceY", 2, 2, 2, 1, Q("12.3 mm")))
sketch13.addConstraint(Sketcher.Constraint("DistanceX", 1, 3, -1, 1, Q("120.025 mm")))
sketch13.addConstraint(Sketcher.Constraint("DistanceY", -1, 1, 1, 3, Q("60.125 mm")))
pocket5 = doc.addObject("PartDesign::Pocket", "Pocket004")
body.addObject(pocket5)
pocket5.Profile = sketch13
pocket5.Type = "UpToFirst"
pocket5.Reversed = True

doc.recompute()
